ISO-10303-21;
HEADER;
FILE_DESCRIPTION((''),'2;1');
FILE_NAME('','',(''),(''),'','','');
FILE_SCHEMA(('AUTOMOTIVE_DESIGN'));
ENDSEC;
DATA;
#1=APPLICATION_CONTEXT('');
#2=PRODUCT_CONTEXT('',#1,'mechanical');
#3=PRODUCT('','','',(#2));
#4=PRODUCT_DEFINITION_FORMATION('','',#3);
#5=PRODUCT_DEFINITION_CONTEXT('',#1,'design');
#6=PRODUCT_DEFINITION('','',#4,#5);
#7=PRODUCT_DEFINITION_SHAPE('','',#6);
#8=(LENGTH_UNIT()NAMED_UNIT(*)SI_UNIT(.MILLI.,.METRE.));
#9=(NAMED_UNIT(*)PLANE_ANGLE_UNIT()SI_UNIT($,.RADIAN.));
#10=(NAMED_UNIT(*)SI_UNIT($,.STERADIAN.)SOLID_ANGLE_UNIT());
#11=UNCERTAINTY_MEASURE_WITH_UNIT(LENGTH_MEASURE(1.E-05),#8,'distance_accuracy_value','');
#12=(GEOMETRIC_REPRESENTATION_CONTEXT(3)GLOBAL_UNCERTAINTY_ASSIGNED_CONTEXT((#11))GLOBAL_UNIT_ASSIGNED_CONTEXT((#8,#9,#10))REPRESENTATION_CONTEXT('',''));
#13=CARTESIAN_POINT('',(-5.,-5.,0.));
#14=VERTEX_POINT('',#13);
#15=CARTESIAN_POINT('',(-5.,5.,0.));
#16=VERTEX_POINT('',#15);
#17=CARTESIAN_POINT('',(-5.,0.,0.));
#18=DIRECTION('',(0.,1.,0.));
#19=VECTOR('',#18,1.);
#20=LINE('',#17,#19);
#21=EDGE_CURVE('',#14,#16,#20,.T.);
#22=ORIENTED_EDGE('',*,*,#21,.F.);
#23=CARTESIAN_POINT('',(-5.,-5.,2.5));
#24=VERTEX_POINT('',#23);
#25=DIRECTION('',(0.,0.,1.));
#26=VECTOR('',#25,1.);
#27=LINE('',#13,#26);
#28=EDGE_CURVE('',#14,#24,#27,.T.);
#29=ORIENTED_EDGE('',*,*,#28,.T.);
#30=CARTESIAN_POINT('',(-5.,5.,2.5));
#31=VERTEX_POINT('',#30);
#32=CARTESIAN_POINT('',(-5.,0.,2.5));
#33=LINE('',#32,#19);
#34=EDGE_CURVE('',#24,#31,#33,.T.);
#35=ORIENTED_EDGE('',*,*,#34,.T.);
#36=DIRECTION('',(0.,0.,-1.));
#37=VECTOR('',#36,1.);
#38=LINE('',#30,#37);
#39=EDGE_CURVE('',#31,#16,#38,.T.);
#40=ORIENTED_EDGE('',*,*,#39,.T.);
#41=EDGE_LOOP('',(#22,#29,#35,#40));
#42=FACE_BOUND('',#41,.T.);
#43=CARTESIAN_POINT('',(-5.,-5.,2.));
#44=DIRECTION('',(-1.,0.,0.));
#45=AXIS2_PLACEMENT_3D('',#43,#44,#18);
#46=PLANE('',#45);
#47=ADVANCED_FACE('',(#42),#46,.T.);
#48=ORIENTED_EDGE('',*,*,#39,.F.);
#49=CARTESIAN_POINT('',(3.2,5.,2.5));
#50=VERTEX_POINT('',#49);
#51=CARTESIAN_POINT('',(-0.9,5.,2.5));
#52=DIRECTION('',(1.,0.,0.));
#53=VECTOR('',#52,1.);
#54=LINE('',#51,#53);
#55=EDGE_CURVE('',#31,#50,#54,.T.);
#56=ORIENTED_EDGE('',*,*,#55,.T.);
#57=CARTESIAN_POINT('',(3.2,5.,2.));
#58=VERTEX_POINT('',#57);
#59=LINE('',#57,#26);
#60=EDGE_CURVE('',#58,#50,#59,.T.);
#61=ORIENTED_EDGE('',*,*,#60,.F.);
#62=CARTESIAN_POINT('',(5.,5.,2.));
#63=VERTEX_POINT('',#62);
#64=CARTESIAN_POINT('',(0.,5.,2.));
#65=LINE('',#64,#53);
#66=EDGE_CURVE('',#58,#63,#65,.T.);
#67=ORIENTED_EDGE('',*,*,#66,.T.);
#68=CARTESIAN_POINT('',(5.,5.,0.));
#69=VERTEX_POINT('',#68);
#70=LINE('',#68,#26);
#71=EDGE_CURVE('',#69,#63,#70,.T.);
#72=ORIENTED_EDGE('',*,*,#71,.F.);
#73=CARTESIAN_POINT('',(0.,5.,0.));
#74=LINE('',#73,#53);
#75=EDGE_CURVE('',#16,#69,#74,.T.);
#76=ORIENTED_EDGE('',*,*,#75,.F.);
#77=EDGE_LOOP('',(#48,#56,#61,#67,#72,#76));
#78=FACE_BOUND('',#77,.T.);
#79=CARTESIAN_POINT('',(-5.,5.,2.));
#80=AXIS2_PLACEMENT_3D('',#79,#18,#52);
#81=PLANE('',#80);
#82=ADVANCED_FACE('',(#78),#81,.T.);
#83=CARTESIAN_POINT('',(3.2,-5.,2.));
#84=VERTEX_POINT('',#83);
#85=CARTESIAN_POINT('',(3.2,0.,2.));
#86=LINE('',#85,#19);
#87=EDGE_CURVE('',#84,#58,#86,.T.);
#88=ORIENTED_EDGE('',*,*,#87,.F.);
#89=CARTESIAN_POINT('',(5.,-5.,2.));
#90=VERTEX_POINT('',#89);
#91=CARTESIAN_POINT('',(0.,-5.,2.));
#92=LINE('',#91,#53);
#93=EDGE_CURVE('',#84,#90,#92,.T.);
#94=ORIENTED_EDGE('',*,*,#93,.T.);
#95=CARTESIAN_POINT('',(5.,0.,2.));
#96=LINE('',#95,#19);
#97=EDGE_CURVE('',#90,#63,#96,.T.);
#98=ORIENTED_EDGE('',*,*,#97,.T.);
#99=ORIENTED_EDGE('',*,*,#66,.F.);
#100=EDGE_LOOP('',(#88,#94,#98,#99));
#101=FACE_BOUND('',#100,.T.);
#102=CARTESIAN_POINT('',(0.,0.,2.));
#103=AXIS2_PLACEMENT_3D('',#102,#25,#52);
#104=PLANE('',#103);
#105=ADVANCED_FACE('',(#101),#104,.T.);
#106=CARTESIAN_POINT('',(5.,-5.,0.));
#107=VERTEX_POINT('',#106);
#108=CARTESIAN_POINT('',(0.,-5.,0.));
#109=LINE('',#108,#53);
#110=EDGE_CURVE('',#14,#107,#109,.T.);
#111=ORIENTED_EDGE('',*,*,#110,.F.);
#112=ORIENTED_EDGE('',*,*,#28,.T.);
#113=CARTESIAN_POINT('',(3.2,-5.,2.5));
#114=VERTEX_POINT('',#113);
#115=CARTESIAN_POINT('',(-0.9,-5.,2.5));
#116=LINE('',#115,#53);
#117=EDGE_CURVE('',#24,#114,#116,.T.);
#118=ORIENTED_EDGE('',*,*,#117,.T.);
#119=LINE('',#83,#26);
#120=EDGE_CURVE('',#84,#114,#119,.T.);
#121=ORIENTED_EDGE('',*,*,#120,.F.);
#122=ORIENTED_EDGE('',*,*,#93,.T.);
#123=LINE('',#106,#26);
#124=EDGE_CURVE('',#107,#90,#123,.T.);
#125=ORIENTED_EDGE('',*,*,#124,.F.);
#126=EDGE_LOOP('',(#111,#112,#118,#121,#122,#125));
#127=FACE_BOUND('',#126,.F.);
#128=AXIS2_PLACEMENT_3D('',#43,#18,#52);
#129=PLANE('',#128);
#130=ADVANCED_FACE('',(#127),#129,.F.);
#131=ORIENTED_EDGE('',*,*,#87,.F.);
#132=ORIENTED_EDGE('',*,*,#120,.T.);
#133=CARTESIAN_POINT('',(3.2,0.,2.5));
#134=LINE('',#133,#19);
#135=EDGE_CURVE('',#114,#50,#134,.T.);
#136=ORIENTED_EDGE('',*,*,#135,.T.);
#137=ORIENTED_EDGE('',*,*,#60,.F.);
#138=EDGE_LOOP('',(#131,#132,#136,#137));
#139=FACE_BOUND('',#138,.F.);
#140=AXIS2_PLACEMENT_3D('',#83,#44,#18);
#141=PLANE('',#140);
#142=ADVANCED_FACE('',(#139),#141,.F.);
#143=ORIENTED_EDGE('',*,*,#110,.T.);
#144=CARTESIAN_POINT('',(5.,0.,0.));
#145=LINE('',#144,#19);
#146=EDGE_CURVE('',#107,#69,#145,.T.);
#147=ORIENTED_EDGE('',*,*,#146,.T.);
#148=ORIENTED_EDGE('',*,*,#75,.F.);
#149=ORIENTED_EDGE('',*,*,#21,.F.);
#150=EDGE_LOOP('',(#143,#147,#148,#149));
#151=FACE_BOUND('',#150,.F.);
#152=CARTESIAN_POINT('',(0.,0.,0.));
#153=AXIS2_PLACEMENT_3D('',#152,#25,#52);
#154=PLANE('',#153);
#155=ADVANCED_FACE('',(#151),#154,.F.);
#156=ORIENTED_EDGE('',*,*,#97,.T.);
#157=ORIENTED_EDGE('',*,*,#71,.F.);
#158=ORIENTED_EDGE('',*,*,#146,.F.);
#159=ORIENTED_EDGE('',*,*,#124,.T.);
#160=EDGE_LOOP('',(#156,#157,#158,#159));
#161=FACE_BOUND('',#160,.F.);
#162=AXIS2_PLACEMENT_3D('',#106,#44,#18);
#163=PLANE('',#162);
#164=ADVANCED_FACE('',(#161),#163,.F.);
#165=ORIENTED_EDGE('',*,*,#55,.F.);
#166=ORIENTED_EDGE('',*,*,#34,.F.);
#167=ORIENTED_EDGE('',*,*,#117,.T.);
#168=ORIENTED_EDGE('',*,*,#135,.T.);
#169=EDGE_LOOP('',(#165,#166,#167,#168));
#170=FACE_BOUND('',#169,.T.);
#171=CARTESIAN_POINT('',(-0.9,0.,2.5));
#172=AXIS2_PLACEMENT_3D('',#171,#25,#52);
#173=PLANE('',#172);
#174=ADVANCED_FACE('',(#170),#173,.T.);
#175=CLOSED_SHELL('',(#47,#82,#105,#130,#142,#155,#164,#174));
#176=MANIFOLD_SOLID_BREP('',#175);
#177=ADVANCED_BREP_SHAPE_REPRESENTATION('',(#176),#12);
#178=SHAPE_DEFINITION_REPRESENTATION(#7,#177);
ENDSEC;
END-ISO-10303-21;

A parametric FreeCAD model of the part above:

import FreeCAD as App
import Part
import Sketcher
from FreeCAD import Vector
Q = App.Units.Quantity

doc = App.newDocument("Part")
body = doc.addObject("PartDesign::Body", "Body")

sketch1 = body.newObject("Sketcher::SketchObject", "Sketch")
sketch1.AttachmentSupport = (doc.getObject("XY_Plane"), [""])
sketch1.MapMode = "FlatFace"
sketch1.addGeometry(Part.LineSegment(Vector(-5, 5, 0), Vector(-5, -5, 0)), False)
sketch1.addGeometry(Part.LineSegment(Vector(-5, -5, 0), Vector(5, -5, 0)), False)
sketch1.addGeometry(Part.LineSegment(Vector(5, -5, 0), Vector(5, 5, 0)), False)
sketch1.addGeometry(Part.LineSegment(Vector(5, 5, 0), Vector(-5, 5, 0)), False)
sketch1.addConstraint(Sketcher.Constraint("Coincident", 0, 2, 1, 1))
sketch1.addConstraint(Sketcher.Constraint("Coincident", 1, 2, 2, 1))
sketch1.addConstraint(Sketcher.Constraint("Coincident", 2, 2, 3, 1))
sketch1.addConstraint(Sketcher.Constraint("Coincident", 3, 2, 0, 1))
sketch1.addConstraint(Sketcher.Constraint("Vertical", 0))
sketch1.addConstraint(Sketcher.Constraint("Horizontal", 1))
sketch1.addConstraint(Sketcher.Constraint("Vertical", 2))
sketch1.addConstraint(Sketcher.Constraint("Horizontal", 3))
sketch1.addConstraint(Sketcher.Constraint("Symmetric", 0, 2, 2, 2, -1, 1))
sketch1.addConstraint(Sketcher.Constraint("Equal", 3, 0))
sketch1.addConstraint(Sketcher.Constraint("DistanceX", 1, 1, 1, 2, Q("10 mm")))
pad1 = body.newObject("PartDesign::Pad", "Pad")
pad1.Profile = sketch1
pad1.Length = 2

sketch2 = body.newObject("Sketcher::SketchObject", "Sketch001")
sketch2.AttachmentSupport = (doc.getObject("XY_Plane"), [""])
sketch2.MapMode = "FlatFace"
sketch2.AttachmentOffset = App.Placement(Vector(0, 0, 2), App.Rotation())
sketch2.addGeometry(Part.LineSegment(Vector(-5, 5, 0), Vector(-5, -5, 0)), False)
sketch2.addGeometry(Part.LineSegment(Vector(-5, -5, 0), Vector(3.2, -5, 0)), False)
sketch2.addGeometry(Part.LineSegment(Vector(3.2, -5, 0), Vector(3.2, 5, 0)), False)
sketch2.addGeometry(Part.LineSegment(Vector(3.2, 5, 0), Vector(-5, 5, 0)), False)
sketch2.addConstraint(Sketcher.Constraint("Coincident", 0, 2, 1, 1))
sketch2.addConstraint(Sketcher.Constraint("Coincident", 1, 2, 2, 1))
sketch2.addConstraint(Sketcher.Constraint("Coincident", 2, 2, 3, 1))
sketch2.addConstraint(Sketcher.Constraint("Coincident", 3, 2, 0, 1))
sketch2.addConstraint(Sketcher.Constraint("Vertical", 0))
sketch2.addConstraint(Sketcher.Constraint("Horizontal", 1))
sketch2.addConstraint(Sketcher.Constraint("Vertical", 2))
sketch2.addConstraint(Sketcher.Constraint("Horizontal", 3))
sketch2.addConstraint(Sketcher.Constraint("DistanceY", 0, 2, 0, 1, Q("10 mm")))
sketch2.addConstraint(Sketcher.Constraint("DistanceX", 1, 1, 1, 2, Q("8.2 mm")))
sketch2.addConstraint(Sketcher.Constraint("DistanceX", 0, 2, -1, 1, Q("5 mm")))
sketch2.addConstraint(Sketcher.Constraint("DistanceY", 0, 2, -1, 1, Q("5 mm")))
pad2 = body.newObject("PartDesign::Pad", "Pad001")
pad2.Profile = sketch2
pad2.Length = 0.5

doc.recompute()
